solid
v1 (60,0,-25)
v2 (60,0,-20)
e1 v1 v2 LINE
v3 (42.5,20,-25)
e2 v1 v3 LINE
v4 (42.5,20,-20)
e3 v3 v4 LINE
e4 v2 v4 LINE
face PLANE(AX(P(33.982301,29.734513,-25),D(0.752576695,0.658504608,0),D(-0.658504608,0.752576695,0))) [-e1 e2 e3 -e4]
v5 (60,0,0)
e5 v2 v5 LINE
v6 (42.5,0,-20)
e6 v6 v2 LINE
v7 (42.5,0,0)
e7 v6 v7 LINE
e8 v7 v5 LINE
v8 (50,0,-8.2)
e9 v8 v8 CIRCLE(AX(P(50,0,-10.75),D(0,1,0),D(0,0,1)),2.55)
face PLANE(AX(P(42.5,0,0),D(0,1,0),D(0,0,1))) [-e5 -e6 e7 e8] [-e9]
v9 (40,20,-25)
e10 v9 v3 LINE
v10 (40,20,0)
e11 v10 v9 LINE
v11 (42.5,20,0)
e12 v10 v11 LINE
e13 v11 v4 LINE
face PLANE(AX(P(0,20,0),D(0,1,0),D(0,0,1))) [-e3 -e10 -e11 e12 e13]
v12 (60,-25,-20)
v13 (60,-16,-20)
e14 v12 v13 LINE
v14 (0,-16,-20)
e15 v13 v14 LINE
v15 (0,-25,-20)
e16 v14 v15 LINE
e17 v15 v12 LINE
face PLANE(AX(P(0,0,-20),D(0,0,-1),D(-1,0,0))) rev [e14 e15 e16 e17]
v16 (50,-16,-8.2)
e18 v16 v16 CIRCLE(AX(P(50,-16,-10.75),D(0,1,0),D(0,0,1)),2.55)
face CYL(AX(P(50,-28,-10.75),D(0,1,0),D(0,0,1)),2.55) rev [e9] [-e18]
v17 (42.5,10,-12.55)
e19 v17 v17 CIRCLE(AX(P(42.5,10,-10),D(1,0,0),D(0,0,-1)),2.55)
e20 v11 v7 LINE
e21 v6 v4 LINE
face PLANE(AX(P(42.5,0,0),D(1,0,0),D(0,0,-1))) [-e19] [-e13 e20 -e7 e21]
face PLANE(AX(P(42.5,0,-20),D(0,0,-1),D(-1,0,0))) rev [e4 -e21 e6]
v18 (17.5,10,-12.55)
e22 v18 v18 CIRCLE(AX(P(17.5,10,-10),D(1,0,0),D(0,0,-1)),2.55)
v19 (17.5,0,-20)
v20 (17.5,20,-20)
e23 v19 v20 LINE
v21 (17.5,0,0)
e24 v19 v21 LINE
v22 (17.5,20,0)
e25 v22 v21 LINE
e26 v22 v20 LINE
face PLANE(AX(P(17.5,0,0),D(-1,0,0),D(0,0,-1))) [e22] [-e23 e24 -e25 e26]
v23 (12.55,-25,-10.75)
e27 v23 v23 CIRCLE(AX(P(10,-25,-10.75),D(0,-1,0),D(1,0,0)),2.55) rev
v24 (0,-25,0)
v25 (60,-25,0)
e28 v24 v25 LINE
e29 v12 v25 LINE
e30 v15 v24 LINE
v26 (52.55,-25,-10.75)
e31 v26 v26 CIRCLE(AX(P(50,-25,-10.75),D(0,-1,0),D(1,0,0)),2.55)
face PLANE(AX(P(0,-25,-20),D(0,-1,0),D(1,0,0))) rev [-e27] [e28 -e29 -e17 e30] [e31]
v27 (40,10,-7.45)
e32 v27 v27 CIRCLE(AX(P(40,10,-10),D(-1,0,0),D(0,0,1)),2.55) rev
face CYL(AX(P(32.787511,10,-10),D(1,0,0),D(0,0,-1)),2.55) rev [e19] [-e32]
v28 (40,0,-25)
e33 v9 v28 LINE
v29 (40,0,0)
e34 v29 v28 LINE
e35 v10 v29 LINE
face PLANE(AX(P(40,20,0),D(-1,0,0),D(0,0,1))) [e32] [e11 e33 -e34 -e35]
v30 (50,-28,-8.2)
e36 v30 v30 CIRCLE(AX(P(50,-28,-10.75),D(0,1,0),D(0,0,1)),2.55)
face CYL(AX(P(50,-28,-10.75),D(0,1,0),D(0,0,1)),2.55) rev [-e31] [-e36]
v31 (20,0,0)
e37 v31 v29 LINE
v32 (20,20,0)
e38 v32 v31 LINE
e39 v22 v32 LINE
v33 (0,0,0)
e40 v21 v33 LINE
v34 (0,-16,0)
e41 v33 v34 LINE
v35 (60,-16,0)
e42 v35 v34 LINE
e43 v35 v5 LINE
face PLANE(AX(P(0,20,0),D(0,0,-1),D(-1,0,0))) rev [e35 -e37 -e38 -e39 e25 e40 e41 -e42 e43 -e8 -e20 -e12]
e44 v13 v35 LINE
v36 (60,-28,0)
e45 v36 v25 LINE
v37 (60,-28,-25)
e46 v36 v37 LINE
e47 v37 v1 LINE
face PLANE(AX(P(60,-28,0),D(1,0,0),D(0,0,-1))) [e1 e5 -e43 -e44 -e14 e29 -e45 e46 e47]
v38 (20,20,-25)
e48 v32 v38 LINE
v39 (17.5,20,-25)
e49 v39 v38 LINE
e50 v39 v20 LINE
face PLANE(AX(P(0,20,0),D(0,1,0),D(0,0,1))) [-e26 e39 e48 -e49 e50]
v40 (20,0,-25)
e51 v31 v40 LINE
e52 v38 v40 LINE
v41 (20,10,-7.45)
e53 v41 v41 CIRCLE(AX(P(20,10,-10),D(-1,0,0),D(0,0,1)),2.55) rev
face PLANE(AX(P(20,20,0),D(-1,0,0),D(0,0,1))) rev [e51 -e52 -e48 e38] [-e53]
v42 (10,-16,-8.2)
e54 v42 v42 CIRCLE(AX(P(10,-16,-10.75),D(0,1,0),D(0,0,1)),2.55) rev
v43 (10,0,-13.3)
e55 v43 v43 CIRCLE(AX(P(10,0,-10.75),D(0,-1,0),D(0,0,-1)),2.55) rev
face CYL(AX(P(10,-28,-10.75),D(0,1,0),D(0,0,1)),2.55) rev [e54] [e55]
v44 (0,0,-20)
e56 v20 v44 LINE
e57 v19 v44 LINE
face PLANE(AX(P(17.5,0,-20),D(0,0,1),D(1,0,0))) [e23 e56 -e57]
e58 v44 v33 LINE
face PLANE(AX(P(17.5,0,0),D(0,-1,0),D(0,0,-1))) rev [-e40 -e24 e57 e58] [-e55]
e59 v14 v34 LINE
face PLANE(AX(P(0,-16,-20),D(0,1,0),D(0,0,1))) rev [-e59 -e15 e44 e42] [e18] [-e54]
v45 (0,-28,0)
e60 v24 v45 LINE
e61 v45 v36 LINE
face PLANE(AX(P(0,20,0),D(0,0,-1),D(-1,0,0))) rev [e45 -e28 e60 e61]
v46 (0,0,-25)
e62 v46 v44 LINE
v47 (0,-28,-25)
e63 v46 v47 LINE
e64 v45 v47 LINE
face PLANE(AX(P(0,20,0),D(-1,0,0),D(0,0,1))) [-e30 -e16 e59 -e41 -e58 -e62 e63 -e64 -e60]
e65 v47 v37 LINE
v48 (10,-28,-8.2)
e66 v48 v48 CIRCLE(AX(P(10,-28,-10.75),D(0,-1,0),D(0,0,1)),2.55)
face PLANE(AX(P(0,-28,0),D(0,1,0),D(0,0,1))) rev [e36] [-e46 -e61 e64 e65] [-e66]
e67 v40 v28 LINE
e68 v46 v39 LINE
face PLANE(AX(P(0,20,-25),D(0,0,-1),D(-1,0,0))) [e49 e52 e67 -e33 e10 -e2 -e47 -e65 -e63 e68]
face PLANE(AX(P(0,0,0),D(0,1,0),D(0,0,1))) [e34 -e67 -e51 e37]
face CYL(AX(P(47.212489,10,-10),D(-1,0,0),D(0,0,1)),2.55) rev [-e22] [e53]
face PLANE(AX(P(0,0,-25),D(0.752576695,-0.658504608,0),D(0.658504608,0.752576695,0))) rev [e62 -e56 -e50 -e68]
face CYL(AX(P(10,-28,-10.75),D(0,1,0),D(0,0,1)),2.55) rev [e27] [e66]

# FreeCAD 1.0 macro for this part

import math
import FreeCAD as App
import Part
import Sketcher

V = App.Vector
Q = App.Units.Quantity

doc = App.newDocument("Part")
body = doc.addObject("PartDesign::Body", "Body")

# Sketch on XZ plane
sketch1 = doc.addObject("Sketcher::SketchObject", "Sketch")
body.addObject(sketch1)
sketch1.AttachmentSupport = (doc.XZ_Plane, [""])
sketch1.MapMode = "FlatFace"
sketch1.addGeometry(Part.LineSegment(V(0, -25, 0), V(0, 0, 0)), False)
sketch1.addGeometry(Part.LineSegment(V(0, 0, 0), V(20, 0, 0)), False)
sketch1.addGeometry(Part.LineSegment(V(20, 0, 0), V(20, -25, 0)), False)
sketch1.addGeometry(Part.LineSegment(V(20, -25, 0), V(0, -25, 0)), False)
sketch1.addConstraint(Sketcher.Constraint("Coincident", 0, 2, 1, 1))
sketch1.addConstraint(Sketcher.Constraint("Coincident", 1, 2, 2, 1))
sketch1.addConstraint(Sketcher.Constraint("Coincident", 2, 2, 3, 1))
sketch1.addConstraint(Sketcher.Constraint("Coincident", 3, 2, 0, 1))
sketch1.addConstraint(Sketcher.Constraint("Vertical", 0))
sketch1.addConstraint(Sketcher.Constraint("Horizontal", 1))
sketch1.addConstraint(Sketcher.Constraint("Vertical", 2))
sketch1.addConstraint(Sketcher.Constraint("Horizontal", 3))
sketch1.addConstraint(Sketcher.Constraint("Coincident", 0, 2, -1, 1))
sketch1.addConstraint(Sketcher.Constraint("DistanceX", 1, 1, 1, 2, Q("20 mm")))
sketch1.addConstraint(Sketcher.Constraint("DistanceY", 0, 1, 0, 2, Q("25 mm")))
pad1 = doc.addObject("PartDesign::Pad", "Pad")
body.addObject(pad1)
pad1.Profile = sketch1
pad1.Length = 20
pad1.Reversed = True
body2 = doc.addObject("PartDesign::Body", "Body001")

# Sketch on XZ plane
sketch2 = doc.addObject("Sketcher::SketchObject", "Sketch001")
body2.addObject(sketch2)
sketch2.AttachmentSupport = (doc.getObject("XZ_Plane001"), [""])
sketch2.MapMode = "FlatFace"
sketch2.addGeometry(Part.LineSegment(V(40, -25, 0), V(40, 0, 0)), False)
sketch2.addGeometry(Part.LineSegment(V(40, 0, 0), V(60, 0, 0)), False)
sketch2.addGeometry(Part.LineSegment(V(60, 0, 0), V(60, -25, 0)), False)
sketch2.addGeometry(Part.LineSegment(V(60, -25, 0), V(40, -25, 0)), False)
sketch2.addConstraint(Sketcher.Constraint("Coincident", 0, 2, 1, 1))
sketch2.addConstraint(Sketcher.Constraint("Coincident", 1, 2, 2, 1))
sketch2.addConstraint(Sketcher.Constraint("Coincident", 2, 2, 3, 1))
sketch2.addConstraint(Sketcher.Constraint("Coincident", 3, 2, 0, 1))
sketch2.addConstraint(Sketcher.Constraint("Vertical", 0))
sketch2.addConstraint(Sketcher.Constraint("Horizontal", 1))
sketch2.addConstraint(Sketcher.Constraint("Vertical", 2))
sketch2.addConstraint(Sketcher.Constraint("Horizontal", 3))
sketch2.addConstraint(Sketcher.Constraint("PointOnObject", 0, 2, -1))
sketch2.addConstraint(Sketcher.Constraint("DistanceX", 1, 1, 1, 2, Q("20 mm")))
sketch2.addConstraint(Sketcher.Constraint("DistanceY", 0, 1, 0, 2, Q("25 mm")))
sketch2.addConstraint(Sketcher.Constraint("DistanceX", -1, 1, 0, 2, Q("40 mm")))
pad2 = doc.addObject("PartDesign::Pad", "Pad001")
body2.addObject(pad2)
pad2.Profile = sketch2
pad2.Length = 20
pad2.Reversed = True
body.AllowCompound = True
doc.recompute()

boolean = doc.addObject("PartDesign::Boolean", "Boolean")
body.addObject(boolean)
boolean.Type = "Fuse"
boolean.addObjects([body2])

# Sketch on XZ plane
sketch3 = doc.addObject("Sketcher::SketchObject", "Sketch002")
body.addObject(sketch3)
sketch3.AttachmentSupport = (doc.XZ_Plane, [""])
sketch3.MapMode = "FlatFace"
sketch3.addGeometry(Part.LineSegment(V(0, -25, 0), V(0, 0, 0)), False)
sketch3.addGeometry(Part.LineSegment(V(0, 0, 0), V(60, 0, 0)), False)
sketch3.addGeometry(Part.LineSegment(V(60, 0, 0), V(60, -25, 0)), False)
sketch3.addGeometry(Part.LineSegment(V(60, -25, 0), V(0, -25, 0)), False)
sketch3.addConstraint(Sketcher.Constraint("Coincident", 0, 2, 1, 1))
sketch3.addConstraint(Sketcher.Constraint("Coincident", 1, 2, 2, 1))
sketch3.addConstraint(Sketcher.Constraint("Coincident", 2, 2, 3, 1))
sketch3.addConstraint(Sketcher.Constraint("Coincident", 3, 2, 0, 1))
sketch3.addConstraint(Sketcher.Constraint("Vertical", 0))
sketch3.addConstraint(Sketcher.Constraint("Horizontal", 1))
sketch3.addConstraint(Sketcher.Constraint("Vertical", 2))
sketch3.addConstraint(Sketcher.Constraint("Horizontal", 3))
sketch3.addConstraint(Sketcher.Constraint("Coincident", 0, 2, -1, 1))
sketch3.addConstraint(Sketcher.Constraint("DistanceX", 1, 1, 1, 2, Q("60 mm")))
sketch3.addConstraint(Sketcher.Constraint("DistanceY", 0, 1, 0, 2, Q("25 mm")))
pad3 = doc.addObject("PartDesign::Pad", "Pad002")
body.addObject(pad3)
pad3.Profile = sketch3
pad3.Length = 28

# Sketch on XY plane
sketch4 = doc.addObject("Sketcher::SketchObject", "Sketch003")
body.addObject(sketch4)
sketch4.AttachmentSupport = (doc.XY_Plane, [""])
sketch4.MapMode = "FlatFace"
sketch4.addGeometry(Part.LineSegment(V(0, -16, 0), V(0, -25, 0)), False)
sketch4.addGeometry(Part.LineSegment(V(0, -25, 0), V(60, -25, 0)), False)
sketch4.addGeometry(Part.LineSegment(V(60, -25, 0), V(60, -16, 0)), False)
sketch4.addGeometry(Part.LineSegment(V(60, -16, 0), V(0, -16, 0)), False)
sketch4.addConstraint(Sketcher.Constraint("Coincident", 0, 2, 1, 1))
sketch4.addConstraint(Sketcher.Constraint("Coincident", 1, 2, 2, 1))
sketch4.addConstraint(Sketcher.Constraint("Coincident", 2, 2, 3, 1))
sketch4.addConstraint(Sketcher.Constraint("Coincident", 3, 2, 0, 1))
sketch4.addConstraint(Sketcher.Constraint("Vertical", 0))
sketch4.addConstraint(Sketcher.Constraint("Horizontal", 1))
sketch4.addConstraint(Sketcher.Constraint("Vertical", 2))
sketch4.addConstraint(Sketcher.Constraint("Horizontal", 3))
sketch4.addConstraint(Sketcher.Constraint("PointOnObject", 0, 2, -2))
sketch4.addConstraint(Sketcher.Constraint("DistanceX", 1, 1, 1, 2, Q("60 mm")))
sketch4.addConstraint(Sketcher.Constraint("DistanceY", 0, 2, 0, 1, Q("9 mm")))
sketch4.addConstraint(Sketcher.Constraint("DistanceY", 0, 2, -1, 1, Q("25 mm")))
pocket1 = doc.addObject("PartDesign::Pocket", "Pocket")
body.addObject(pocket1)
pocket1.Profile = sketch4
pocket1.Length = 20

# Sketch on XY plane
sketch5 = doc.addObject("Sketcher::SketchObject", "Sketch004")
body.addObject(sketch5)
sketch5.AttachmentSupport = (doc.XY_Plane, [""])
sketch5.MapMode = "FlatFace"
sketch5.addGeometry(Part.LineSegment(V(0, 20, 0), V(0, 0, 0)), False)
sketch5.addGeometry(Part.LineSegment(V(0, 0, 0), V(17.5, 20, 0)), False)
sketch5.addGeometry(Part.LineSegment(V(17.5, 20, 0), V(0, 20, 0)), False)
sketch5.addGeometry(Part.LineSegment(V(42.5, 20, 0), V(60, 0, 0)), False)
sketch5.addGeometry(Part.LineSegment(V(60, 0, 0), V(60, 20, 0)), False)
sketch5.addGeometry(Part.LineSegment(V(60, 20, 0), V(42.5, 20, 0)), False)
sketch5.addConstraint(Sketcher.Constraint("Coincident", 0, 2, 1, 1))
sketch5.addConstraint(Sketcher.Constraint("Coincident", 1, 2, 2, 1))
sketch5.addConstraint(Sketcher.Constraint("Coincident", 2, 2, 0, 1))
sketch5.addConstraint(Sketcher.Constraint("Coincident", 3, 2, 4, 1))
sketch5.addConstraint(Sketcher.Constraint("Coincident", 4, 2, 5, 1))
sketch5.addConstraint(Sketcher.Constraint("Coincident", 5, 2, 3, 1))
sketch5.addConstraint(Sketcher.Constraint("Vertical", 0))
sketch5.addConstraint(Sketcher.Constraint("Horizontal", 2))
sketch5.addConstraint(Sketcher.Constraint("Vertical", 4))
sketch5.addConstraint(Sketcher.Constraint("Horizontal", 5))
sketch5.addConstraint(Sketcher.Constraint("Coincident", 0, 2, -1, 1))
sketch5.addConstraint(Sketcher.Constraint("PointOnObject", 3, 2, -1))
sketch5.addConstraint(Sketcher.Constraint("Horizontal", 2, 2, 4, 2))
sketch5.addConstraint(Sketcher.Constraint("Equal", 2, 5))
sketch5.addConstraint(Sketcher.Constraint("DistanceY", 0, 2, 0, 1, Q("20 mm")))
sketch5.addConstraint(Sketcher.Constraint("DistanceX", 2, 2, 2, 1, Q("17.5 mm")))
sketch5.addConstraint(Sketcher.Constraint("DistanceX", -1, 1, 3, 2, Q("60 mm")))
pocket2 = doc.addObject("PartDesign::Pocket", "Pocket001")
body.addObject(pocket2)
pocket2.Profile = sketch5
pocket2.Type = "ThroughAll"

# Sketch on YZ plane
sketch6 = doc.addObject("Sketcher::SketchObject", "Sketch005")
body.addObject(sketch6)
sketch6.AttachmentSupport = (doc.YZ_Plane, [""])
sketch6.MapMode = "FlatFace"
sketch6.AttachmentOffset = App.Placement(V(0, 0, 60), App.Rotation())
sketch6.addGeometry(Part.LineSegment(V(0, -20, 0), V(20, -20, 0)), False)
sketch6.addGeometry(Part.LineSegment(V(20, -20, 0), V(20, 0, 0)), False)
sketch6.addGeometry(Part.LineSegment(V(20, 0, 0), V(0, 0, 0)), False)
sketch6.addGeometry(Part.LineSegment(V(0, 0, 0), V(0, -20, 0)), False)
sketch6.addConstraint(Sketcher.Constraint("Coincident", 0, 2, 1, 1))
sketch6.addConstraint(Sketcher.Constraint("Coincident", 1, 2, 2, 1))
sketch6.addConstraint(Sketcher.Constraint("Coincident", 2, 2, 3, 1))
sketch6.addConstraint(Sketcher.Constraint("Coincident", 3, 2, 0, 1))
sketch6.addConstraint(Sketcher.Constraint("Horizontal", 0))
sketch6.addConstraint(Sketcher.Constraint("Vertical", 1))
sketch6.addConstraint(Sketcher.Constraint("Horizontal", 2))
sketch6.addConstraint(Sketcher.Constraint("Vertical", 3))
sketch6.addConstraint(Sketcher.Constraint("Coincident", 2, 2, -1, 1))
sketch6.addConstraint(Sketcher.Constraint("Equal", 2, 1))
sketch6.addConstraint(Sketcher.Constraint("DistanceX", 0, 1, 0, 2, Q("20 mm")))
pocket3 = doc.addObject("PartDesign::Pocket", "Pocket002")
body.addObject(pocket3)
pocket3.Profile = sketch6
pocket3.Length = 17.5

# Sketch on YZ plane
sketch7 = doc.addObject("Sketcher::SketchObject", "Sketch006")
body.addObject(sketch7)
sketch7.AttachmentSupport = (doc.YZ_Plane, [""])
sketch7.MapMode = "FlatFace"
sketch7.AttachmentOffset = App.Placement(V(0, 0, 42.5), App.Rotation())
sketch7.addGeometry(Part.ArcOfCircle(Part.Circle(V(10, -10, 0), V(0, 0, 1), 2.55), math.radians(-90), math.radians(0)), False)
sketch7.addGeometry(Part.ArcOfCircle(Part.Circle(V(10, -10, 0), V(0, 0, 1), 2.55), math.radians(0), math.radians(180)), False)
sketch7.addGeometry(Part.ArcOfCircle(Part.Circle(V(10, -10, 0), V(0, 0, 1), 2.55), math.radians(180), math.radians(270)), False)
sketch7.addConstraint(Sketcher.Constraint("Tangent", 0, 2, 1, 1))
sketch7.addConstraint(Sketcher.Constraint("Tangent", 1, 2, 2, 1))
sketch7.addConstraint(Sketcher.Constraint("Tangent", 2, 2, 0, 1))
sketch7.addConstraint(Sketcher.Constraint("Horizontal", 2, 3, 0, 2))
sketch7.addConstraint(Sketcher.Constraint("Horizontal", 0, 2, 1, 2))
sketch7.addConstraint(Sketcher.Constraint("Vertical", 1, 3, 2, 2))
sketch7.addConstraint(Sketcher.Constraint("Radius", 0, Q("2.55 mm")))
sketch7.addConstraint(Sketcher.Constraint("DistanceX", -1, 1, 0, 3, Q("10 mm")))
sketch7.addConstraint(Sketcher.Constraint("DistanceY", 0, 3, -1, 1, Q("10 mm")))
pocket4 = doc.addObject("PartDesign::Pocket", "Pocket003")
body.addObject(pocket4)
pocket4.Profile = sketch7
pocket4.Length = 22.5

# Sketch on XZ plane
sketch8 = doc.addObject("Sketcher::SketchObject", "Sketch007")
body.addObject(sketch8)
sketch8.AttachmentSupport = (doc.XZ_Plane, [""])
sketch8.MapMode = "FlatFace"
sketch8.addGeometry(Part.Circle(V(50, -10.75, 0), V(0, 0, 1), 2.55), False)
sketch8.addConstraint(Sketcher.Constraint("Diameter", 0, Q("5.1 mm")))
sketch8.addConstraint(Sketcher.Constraint("DistanceX", -1, 1, 0, 3, Q("50 mm")))
sketch8.addConstraint(Sketcher.Constraint("DistanceY", 0, 3, -1, 1, Q("10.75 mm")))
pocket5 = doc.addObject("PartDesign::Pocket", "Pocket004")
body.addObject(pocket5)
pocket5.Profile = sketch8
pocket5.Length = 143.548578
pocket5.Midplane = True
doc.recompute()

datumplane = doc.addObject("PartDesign::Plane", "DatumPlane")
body.addObject(datumplane)
datumplane.AttachmentSupport = (doc.YZ_Plane, [""])
datumplane.MapMode = "FlatFace"
datumplane.AttachmentOffset = App.Placement(V(0, 0, 30), App.Rotation())
mirrored = doc.addObject("PartDesign::Mirrored", "Mirrored")
body.addObject(mirrored)
mirrored.Originals = [pocket3, pocket4, pocket5]
mirrored.MirrorPlane = (datumplane, [""])
body.Tip = mirrored

doc.recompute()
